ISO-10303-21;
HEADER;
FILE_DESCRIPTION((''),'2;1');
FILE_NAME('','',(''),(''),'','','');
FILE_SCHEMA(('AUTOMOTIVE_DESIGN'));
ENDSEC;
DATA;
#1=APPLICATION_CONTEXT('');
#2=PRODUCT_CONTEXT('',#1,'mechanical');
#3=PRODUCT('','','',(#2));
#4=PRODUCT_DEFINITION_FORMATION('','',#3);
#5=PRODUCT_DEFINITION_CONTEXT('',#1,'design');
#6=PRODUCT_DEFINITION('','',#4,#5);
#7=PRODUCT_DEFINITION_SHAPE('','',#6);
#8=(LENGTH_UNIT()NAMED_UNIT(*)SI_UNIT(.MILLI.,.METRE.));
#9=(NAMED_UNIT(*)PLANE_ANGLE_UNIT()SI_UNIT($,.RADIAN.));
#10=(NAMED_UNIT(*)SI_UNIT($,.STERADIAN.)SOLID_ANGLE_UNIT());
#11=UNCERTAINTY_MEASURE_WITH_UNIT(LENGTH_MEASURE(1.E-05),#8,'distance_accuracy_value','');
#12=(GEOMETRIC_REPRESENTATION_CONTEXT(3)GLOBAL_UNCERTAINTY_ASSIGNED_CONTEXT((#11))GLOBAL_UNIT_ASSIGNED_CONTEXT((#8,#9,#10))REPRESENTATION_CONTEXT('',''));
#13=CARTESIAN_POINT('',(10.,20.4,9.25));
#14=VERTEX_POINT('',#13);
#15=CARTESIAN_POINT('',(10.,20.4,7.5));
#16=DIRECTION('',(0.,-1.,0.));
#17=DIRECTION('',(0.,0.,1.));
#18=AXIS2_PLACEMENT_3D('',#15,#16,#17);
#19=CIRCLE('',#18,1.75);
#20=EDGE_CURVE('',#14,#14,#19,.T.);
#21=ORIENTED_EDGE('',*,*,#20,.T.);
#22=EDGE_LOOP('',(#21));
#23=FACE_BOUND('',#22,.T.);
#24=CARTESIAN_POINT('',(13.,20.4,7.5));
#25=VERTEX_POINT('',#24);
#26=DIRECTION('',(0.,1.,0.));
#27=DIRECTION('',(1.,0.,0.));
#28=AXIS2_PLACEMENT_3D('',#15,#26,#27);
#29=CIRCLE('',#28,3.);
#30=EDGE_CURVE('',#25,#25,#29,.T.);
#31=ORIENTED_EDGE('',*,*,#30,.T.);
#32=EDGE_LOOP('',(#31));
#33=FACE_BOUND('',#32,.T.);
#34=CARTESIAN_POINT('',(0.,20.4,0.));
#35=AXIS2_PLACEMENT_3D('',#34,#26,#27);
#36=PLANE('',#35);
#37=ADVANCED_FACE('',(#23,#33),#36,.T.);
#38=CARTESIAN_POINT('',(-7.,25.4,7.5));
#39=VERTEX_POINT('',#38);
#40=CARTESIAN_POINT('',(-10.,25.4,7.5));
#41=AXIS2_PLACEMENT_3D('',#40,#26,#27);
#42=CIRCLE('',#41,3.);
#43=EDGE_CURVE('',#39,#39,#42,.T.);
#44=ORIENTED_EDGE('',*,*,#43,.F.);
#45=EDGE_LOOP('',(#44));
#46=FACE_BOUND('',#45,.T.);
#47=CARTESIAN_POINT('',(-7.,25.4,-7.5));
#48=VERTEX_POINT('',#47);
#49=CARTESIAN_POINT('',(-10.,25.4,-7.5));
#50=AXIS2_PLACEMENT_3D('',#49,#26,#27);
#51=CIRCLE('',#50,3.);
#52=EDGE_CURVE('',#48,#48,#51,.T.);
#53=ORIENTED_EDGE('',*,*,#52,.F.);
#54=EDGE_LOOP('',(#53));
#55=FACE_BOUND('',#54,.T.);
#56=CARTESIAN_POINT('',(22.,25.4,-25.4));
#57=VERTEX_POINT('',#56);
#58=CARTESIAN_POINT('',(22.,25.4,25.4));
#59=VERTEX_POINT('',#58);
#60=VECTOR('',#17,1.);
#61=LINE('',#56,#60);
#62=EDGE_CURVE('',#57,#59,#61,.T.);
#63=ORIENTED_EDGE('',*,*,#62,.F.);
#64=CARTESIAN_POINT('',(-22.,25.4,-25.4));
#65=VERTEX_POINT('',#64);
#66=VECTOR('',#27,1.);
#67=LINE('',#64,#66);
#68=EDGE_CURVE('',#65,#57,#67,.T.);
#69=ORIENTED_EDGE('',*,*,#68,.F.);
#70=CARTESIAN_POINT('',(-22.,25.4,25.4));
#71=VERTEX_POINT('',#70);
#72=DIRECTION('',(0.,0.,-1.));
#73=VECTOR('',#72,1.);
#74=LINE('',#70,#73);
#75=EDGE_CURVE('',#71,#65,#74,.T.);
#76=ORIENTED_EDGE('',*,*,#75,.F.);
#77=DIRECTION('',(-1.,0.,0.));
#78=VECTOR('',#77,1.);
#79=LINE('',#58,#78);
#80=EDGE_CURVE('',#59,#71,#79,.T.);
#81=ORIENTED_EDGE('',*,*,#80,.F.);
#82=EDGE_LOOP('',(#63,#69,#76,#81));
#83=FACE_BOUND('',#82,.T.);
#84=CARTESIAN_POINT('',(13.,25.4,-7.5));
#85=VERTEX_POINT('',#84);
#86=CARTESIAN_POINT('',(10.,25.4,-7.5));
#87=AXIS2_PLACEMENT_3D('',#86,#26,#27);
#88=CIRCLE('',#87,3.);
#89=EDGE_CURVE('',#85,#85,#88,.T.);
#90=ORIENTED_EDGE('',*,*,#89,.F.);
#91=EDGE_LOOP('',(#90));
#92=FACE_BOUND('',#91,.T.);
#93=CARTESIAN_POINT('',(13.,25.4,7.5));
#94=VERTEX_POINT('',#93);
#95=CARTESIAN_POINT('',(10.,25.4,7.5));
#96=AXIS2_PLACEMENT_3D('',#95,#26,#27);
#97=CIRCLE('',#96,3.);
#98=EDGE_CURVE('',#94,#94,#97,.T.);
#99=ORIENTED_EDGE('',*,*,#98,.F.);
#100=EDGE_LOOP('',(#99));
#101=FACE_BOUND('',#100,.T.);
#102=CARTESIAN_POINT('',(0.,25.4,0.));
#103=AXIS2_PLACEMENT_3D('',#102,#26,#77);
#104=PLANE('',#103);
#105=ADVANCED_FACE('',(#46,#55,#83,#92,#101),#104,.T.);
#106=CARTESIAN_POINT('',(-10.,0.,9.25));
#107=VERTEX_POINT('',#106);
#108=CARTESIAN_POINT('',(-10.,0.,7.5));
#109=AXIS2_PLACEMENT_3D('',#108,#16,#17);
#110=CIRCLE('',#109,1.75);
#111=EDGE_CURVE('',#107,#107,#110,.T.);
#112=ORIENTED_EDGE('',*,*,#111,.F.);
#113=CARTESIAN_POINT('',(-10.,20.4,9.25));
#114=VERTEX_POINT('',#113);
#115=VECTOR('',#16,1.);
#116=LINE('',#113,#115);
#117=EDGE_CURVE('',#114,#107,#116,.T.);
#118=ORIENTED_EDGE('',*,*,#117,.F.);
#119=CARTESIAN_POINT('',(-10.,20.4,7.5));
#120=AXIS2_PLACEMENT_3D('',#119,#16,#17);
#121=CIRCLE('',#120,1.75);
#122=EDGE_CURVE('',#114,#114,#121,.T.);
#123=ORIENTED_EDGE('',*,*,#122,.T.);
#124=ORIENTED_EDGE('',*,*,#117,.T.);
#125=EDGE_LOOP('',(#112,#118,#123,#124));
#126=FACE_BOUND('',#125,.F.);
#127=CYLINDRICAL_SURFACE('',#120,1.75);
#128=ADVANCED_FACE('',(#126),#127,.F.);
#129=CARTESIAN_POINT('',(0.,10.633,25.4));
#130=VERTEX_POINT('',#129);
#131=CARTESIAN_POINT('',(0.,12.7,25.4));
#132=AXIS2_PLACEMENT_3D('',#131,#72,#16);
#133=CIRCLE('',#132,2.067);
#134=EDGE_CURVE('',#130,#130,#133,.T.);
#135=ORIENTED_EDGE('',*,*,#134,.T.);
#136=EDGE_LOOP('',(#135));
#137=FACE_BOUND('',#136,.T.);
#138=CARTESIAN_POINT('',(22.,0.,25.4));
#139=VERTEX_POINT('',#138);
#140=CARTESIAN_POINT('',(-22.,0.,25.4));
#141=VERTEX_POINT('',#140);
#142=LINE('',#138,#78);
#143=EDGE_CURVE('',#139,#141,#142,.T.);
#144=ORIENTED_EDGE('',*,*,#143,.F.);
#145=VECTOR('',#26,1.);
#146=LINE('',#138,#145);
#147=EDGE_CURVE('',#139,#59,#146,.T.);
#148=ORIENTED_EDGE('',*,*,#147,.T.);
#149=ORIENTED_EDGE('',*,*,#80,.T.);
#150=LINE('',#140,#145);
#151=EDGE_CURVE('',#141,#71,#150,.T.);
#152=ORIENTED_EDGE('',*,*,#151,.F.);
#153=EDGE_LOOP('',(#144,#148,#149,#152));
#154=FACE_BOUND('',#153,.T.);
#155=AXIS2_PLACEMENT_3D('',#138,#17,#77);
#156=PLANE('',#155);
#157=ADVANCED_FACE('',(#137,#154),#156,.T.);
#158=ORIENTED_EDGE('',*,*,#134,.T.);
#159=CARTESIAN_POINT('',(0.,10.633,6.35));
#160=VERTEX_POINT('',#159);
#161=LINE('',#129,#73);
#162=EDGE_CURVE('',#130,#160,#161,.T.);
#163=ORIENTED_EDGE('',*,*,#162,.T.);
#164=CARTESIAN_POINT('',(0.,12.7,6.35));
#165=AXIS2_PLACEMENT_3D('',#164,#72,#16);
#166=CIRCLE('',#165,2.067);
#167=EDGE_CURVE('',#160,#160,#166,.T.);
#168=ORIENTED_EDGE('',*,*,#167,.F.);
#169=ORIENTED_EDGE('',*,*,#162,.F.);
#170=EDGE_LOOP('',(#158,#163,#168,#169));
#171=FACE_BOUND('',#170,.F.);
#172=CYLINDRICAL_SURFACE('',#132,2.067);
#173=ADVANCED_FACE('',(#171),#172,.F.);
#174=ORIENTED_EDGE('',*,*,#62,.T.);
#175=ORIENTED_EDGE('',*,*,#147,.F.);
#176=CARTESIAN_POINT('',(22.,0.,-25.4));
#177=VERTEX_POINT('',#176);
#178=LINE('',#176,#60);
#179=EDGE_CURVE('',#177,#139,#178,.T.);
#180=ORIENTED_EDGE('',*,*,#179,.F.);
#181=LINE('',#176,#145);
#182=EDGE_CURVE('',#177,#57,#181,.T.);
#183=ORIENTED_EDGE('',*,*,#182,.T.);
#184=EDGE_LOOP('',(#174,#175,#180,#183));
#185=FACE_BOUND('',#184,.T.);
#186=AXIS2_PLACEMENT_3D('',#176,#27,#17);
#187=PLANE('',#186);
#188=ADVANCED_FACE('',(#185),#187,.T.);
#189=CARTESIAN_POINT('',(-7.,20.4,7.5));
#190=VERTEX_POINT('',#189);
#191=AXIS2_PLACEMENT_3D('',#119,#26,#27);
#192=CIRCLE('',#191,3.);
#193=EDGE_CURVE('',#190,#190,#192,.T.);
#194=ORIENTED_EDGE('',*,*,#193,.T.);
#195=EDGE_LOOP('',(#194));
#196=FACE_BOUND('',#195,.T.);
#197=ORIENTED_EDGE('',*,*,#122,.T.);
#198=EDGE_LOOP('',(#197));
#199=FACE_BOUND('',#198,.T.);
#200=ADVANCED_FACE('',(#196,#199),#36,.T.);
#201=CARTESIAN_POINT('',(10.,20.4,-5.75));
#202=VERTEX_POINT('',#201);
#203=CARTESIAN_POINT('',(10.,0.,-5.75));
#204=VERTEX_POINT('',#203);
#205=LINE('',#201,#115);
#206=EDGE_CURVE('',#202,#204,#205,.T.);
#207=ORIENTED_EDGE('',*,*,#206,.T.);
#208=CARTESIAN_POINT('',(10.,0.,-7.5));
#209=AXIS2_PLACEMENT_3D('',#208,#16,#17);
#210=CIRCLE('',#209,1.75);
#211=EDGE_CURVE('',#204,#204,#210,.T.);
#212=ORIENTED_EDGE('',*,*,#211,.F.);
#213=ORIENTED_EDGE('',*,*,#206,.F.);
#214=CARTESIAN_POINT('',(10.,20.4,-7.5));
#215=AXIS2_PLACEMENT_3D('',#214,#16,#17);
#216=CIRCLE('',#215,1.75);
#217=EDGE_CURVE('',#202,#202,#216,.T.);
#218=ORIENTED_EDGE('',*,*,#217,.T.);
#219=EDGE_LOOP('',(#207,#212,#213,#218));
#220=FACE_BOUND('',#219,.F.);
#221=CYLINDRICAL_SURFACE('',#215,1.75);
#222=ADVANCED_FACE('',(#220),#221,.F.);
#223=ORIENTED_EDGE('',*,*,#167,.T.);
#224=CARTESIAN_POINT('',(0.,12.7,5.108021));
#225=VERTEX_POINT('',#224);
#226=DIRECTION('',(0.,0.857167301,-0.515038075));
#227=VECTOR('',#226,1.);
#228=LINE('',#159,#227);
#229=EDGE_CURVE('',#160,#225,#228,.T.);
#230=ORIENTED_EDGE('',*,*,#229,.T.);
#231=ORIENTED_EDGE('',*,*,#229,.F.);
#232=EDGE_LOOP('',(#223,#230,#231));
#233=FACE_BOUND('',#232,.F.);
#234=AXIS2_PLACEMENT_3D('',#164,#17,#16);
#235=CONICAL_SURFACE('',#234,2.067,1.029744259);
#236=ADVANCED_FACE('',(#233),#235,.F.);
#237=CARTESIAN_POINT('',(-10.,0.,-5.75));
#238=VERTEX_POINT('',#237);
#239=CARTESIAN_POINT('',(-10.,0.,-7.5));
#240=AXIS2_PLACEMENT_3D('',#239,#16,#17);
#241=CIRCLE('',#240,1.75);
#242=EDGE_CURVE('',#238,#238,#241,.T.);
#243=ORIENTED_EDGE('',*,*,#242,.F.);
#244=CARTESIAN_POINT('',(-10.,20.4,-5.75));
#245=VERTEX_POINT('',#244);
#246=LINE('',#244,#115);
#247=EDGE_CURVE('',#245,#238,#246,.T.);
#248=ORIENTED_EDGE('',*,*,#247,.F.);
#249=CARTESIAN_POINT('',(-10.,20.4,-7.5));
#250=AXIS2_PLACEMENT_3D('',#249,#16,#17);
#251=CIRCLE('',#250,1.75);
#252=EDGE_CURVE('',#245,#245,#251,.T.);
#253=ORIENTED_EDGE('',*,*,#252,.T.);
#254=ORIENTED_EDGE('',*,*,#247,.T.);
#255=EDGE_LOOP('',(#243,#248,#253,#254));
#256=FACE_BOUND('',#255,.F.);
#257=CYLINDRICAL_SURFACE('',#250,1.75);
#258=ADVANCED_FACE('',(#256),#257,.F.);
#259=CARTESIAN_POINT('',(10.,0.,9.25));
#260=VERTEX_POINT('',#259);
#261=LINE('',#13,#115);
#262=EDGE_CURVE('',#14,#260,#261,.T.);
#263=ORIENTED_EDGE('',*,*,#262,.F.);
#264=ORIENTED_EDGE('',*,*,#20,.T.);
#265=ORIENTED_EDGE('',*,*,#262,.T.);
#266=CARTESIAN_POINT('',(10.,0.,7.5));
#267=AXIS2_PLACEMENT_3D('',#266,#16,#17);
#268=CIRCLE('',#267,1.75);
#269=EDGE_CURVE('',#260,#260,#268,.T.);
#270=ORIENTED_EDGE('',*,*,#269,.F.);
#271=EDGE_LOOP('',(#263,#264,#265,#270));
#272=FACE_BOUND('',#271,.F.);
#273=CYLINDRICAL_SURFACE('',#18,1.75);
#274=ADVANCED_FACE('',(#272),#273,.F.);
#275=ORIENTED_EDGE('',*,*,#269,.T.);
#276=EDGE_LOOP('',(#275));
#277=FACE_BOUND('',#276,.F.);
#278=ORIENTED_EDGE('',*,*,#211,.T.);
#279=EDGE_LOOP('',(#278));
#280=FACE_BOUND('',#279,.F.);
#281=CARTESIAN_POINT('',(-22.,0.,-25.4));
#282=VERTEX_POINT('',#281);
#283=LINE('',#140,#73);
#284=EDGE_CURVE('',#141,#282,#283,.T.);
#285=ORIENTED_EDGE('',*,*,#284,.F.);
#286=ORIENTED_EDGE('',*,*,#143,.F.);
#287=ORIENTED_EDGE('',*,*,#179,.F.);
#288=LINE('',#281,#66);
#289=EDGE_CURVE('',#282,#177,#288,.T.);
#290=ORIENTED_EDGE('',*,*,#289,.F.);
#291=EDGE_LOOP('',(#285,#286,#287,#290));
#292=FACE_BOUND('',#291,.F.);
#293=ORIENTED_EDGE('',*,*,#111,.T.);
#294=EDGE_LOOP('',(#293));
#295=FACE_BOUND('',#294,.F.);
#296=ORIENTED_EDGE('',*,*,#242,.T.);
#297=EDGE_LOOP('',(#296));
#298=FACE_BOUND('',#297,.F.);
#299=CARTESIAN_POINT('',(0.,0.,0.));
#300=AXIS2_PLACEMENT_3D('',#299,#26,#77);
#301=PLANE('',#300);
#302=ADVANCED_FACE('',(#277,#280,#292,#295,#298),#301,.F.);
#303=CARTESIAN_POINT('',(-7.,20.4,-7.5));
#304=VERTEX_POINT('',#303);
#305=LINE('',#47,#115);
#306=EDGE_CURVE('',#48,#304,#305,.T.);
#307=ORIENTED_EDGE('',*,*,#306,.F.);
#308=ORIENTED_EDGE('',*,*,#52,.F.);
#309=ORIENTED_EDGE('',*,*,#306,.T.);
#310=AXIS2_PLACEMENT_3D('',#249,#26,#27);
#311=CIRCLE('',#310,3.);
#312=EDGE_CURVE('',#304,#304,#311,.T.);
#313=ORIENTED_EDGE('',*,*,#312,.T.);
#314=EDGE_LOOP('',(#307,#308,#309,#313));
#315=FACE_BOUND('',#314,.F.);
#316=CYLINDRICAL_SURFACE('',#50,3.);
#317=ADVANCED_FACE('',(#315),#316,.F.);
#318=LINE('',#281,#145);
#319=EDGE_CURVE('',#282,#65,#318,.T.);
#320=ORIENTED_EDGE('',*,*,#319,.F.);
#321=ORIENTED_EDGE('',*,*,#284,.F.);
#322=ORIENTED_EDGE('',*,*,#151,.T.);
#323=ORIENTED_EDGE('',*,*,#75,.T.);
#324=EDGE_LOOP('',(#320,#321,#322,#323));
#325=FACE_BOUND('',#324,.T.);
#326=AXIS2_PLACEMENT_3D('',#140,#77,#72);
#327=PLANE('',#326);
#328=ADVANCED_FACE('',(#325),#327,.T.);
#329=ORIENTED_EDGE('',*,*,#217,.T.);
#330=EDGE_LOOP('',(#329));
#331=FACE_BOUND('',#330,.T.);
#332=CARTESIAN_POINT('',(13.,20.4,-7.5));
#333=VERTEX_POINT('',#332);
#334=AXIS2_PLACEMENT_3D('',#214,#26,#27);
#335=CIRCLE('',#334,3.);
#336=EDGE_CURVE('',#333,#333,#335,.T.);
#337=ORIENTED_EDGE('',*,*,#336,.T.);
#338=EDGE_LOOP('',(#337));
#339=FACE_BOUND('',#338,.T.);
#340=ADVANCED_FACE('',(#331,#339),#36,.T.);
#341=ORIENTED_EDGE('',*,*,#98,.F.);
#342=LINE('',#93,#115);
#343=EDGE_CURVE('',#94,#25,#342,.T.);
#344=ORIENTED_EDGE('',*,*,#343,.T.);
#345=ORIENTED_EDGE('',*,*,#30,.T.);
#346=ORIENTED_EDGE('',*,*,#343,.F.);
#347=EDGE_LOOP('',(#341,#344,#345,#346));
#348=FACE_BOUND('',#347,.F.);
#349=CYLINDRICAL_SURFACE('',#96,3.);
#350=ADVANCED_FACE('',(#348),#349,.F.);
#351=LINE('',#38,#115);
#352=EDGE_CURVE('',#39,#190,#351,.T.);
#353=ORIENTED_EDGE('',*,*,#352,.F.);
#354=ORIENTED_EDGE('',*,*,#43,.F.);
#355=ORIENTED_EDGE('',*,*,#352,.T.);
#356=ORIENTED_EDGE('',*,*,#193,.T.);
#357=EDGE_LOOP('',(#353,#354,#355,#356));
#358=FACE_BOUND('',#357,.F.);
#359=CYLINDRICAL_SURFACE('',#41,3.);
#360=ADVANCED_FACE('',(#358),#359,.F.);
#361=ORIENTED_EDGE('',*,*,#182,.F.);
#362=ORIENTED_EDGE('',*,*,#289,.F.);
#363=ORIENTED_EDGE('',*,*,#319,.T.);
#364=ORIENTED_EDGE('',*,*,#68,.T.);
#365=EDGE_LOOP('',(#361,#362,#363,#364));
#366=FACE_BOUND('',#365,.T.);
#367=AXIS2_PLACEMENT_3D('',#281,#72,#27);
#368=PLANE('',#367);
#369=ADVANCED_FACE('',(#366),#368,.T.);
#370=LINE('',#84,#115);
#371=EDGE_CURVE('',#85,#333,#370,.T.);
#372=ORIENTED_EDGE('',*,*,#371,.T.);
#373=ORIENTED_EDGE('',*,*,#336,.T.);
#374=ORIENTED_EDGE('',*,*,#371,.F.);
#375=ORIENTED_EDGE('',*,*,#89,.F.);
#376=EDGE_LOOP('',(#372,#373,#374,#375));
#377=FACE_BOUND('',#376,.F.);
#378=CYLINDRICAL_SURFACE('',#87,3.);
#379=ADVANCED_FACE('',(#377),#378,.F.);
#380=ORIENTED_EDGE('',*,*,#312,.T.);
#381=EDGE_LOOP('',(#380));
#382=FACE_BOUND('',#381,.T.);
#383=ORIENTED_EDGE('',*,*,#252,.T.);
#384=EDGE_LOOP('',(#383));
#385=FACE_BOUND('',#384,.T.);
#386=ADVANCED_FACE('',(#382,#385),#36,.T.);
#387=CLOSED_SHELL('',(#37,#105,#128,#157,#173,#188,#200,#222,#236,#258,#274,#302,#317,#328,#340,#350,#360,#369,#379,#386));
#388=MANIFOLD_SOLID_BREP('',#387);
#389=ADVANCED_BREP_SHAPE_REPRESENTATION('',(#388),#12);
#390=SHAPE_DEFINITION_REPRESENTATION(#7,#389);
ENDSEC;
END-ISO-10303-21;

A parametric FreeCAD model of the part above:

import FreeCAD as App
import Part
import Sketcher
Q = App.Units.Quantity


def add_polygon(sketch, points):
    """Adds a closed chain of lines whose ends are joined by coincident constraints."""
    first, n = sketch.GeometryCount, len(points)
    for a, b in zip(points, points[1:] + points[:1]):
        sketch.addGeometry(Part.LineSegment(App.Vector(*a, 0), App.Vector(*b, 0)), False)
    for i in range(n):
        sketch.addConstraint(Sketcher.Constraint("Coincident", first + i, 2, first + (i + 1) % n, 1))

doc = App.newDocument("Part")
params = doc.addObject("Spreadsheet::Sheet", "Params")
for row, (alias, value) in enumerate([
    ("sketch1_width", "44 mm"),
    ("sketch1_height", "50.8 mm"),
    ("pad1_length", "25.4 mm"),
    ("hole_diameter", "4.134 mm"),
    ("hole_depth", "19.05 mm"),
    ("sketch3_diameter", "6 mm"),
    ("pocket1_length", "5 mm"),
    ("sketch4_diameter", "3.5 mm"),
    ("hole2_diameter", "3.5 mm"),
], start=1):
    params.set(f"A{row}", alias)
    params.set(f"B{row}", "=" + value)
    params.setAlias(f"B{row}", alias)

body = doc.addObject("PartDesign::Body", "Body")

sketch1 = body.newObject("Sketcher::SketchObject", "Sketch")
sketch1.AttachmentSupport = (doc.getObject("XZ_Plane"), [""])
sketch1.MapMode = "FlatFace"
add_polygon(sketch1, [(-22, 25.4), (22, 25.4), (22, -25.4), (-22, -25.4)])
sketch1.addConstraint([
    Sketcher.Constraint("Horizontal", 0),
    Sketcher.Constraint("Vertical", 1),
    Sketcher.Constraint("Horizontal", 2),
    Sketcher.Constraint("Vertical", 3),
    Sketcher.Constraint("Symmetric", 0, 2, 2, 2, -1, 1),
    Sketcher.Constraint("DistanceX", 0, 1, 0, 2, Q("44 mm")),
    Sketcher.Constraint("DistanceY", 1, 2, 1, 1, Q("50.8 mm")),
])
sketch1.setExpression("Constraints[9]", "Params.sketch1_width")
sketch1.setExpression("Constraints[10]", "Params.sketch1_height")
pad1 = body.newObject("PartDesign::Pad", "Pad")
pad1.Profile = sketch1
pad1.setExpression("Length", "Params.pad1_length")
pad1.Reversed = True

sketch2 = body.newObject("Sketcher::SketchObject", "Sketch001")
sketch2.AttachmentSupport = (doc.getObject("XY_Plane"), [""])
sketch2.MapMode = "FlatFace"
sketch2.AttachmentOffset = App.Placement(App.Vector(0, 0, 25.4), App.Rotation())
sketch2.addGeometry(Part.Circle(App.Vector(0, 12.7, 0), App.Vector(0, 0, 1), 2.067), False)
sketch2.addConstraint([
    Sketcher.Constraint("PointOnObject", 0, 3, -2),
    Sketcher.Constraint("Diameter", 0, Q("4.134 mm")),
    Sketcher.Constraint("DistanceY", -1, 1, 0, 3, Q("12.7 mm")),
])
doc.recompute()
hole = body.newObject("PartDesign::Hole", "Hole")
hole.Profile = sketch2
hole.ThreadType = "None"
hole.setExpression("Diameter", "Params.hole_diameter")
hole.DepthType = "Dimension"
hole.setExpression("Depth", "Params.hole_depth")
hole.DrillPoint = "Angled"
hole.DrillPointAngle = 118

sketch3 = body.newObject("Sketcher::SketchObject", "Sketch002")
sketch3.AttachmentSupport = (doc.getObject("XZ_Plane"), [""])
sketch3.MapMode = "FlatFace"
sketch3.AttachmentOffset = App.Placement(App.Vector(0, 0, -25.4), App.Rotation())
sketch3.addGeometry([
    Part.Circle(App.Vector(-10, -7.5, 0), App.Vector(0, 0, 1), 3),
    Part.Circle(App.Vector(10, -7.5, 0), App.Vector(0, 0, 1), 3),
    Part.Circle(App.Vector(10, 7.5, 0), App.Vector(0, 0, 1), 3),
    Part.Circle(App.Vector(-10, 7.5, 0), App.Vector(0, 0, 1), 3),
], False)
sketch3.addConstraint([
    Sketcher.Constraint("Equal", 0, 1),
    Sketcher.Constraint("Equal", 1, 2),
    Sketcher.Constraint("Equal", 2, 3),
    Sketcher.Constraint("Symmetric", 0, 3, 2, 3, -1, 1),
    Sketcher.Constraint("Symmetric", 1, 3, 3, 3, -1, 1),
    Sketcher.Constraint("Symmetric", 0, 3, 1, 3, -2),
    Sketcher.Constraint("Diameter", 0, Q("6 mm")),
    Sketcher.Constraint("DistanceX", 0, 3, 1, 3, Q("20 mm")),
    Sketcher.Constraint("DistanceY", 1, 3, 2, 3, Q("15 mm")),
])
sketch3.setExpression("Constraints[6]", "Params.sketch3_diameter")
pocket1 = body.newObject("PartDesign::Pocket", "Pocket")
pocket1.Profile = sketch3
pocket1.setExpression("Length", "Params.pocket1_length")
pocket1.Reversed = True

sketch4 = body.newObject("Sketcher::SketchObject", "Sketch003")
sketch4.AttachmentSupport = (doc.getObject("XZ_Plane"), [""])
sketch4.MapMode = "FlatFace"
sketch4.AttachmentOffset = App.Placement(App.Vector(0, 0, -20.4), App.Rotation())
sketch4.addGeometry([
    Part.Circle(App.Vector(-10, -7.5, 0), App.Vector(0, 0, 1), 1.75),
    Part.Circle(App.Vector(-10, 7.5, 0), App.Vector(0, 0, 1), 1.75),
    Part.Circle(App.Vector(10, 7.5, 0), App.Vector(0, 0, 1), 1.75),
    Part.Circle(App.Vector(10, -7.5, 0), App.Vector(0, 0, 1), 1.75),
], False)
sketch4.addConstraint([
    Sketcher.Constraint("Equal", 0, 1),
    Sketcher.Constraint("Equal", 1, 2),
    Sketcher.Constraint("Equal", 2, 3),
    Sketcher.Constraint("Symmetric", 0, 3, 2, 3, -1, 1),
    Sketcher.Constraint("Symmetric", 1, 3, 3, 3, -1, 1),
    Sketcher.Constraint("Symmetric", 1, 3, 2, 3, -2),
    Sketcher.Constraint("Diameter", 0, Q("3.5 mm")),
    Sketcher.Constraint("DistanceX", 0, 3, -1, 1, Q("10 mm")),
    Sketcher.Constraint("DistanceY", 0, 3, 1, 3, Q("15 mm")),
])
sketch4.setExpression("Constraints[6]", "Params.sketch4_diameter")
doc.recompute()
hole2 = body.newObject("PartDesign::Hole", "Hole001")
hole2.Profile = sketch4
hole2.ThreadType = "None"
hole2.setExpression("Diameter", "Params.hole2_diameter")
hole2.DepthType = "ThroughAll"
hole2.Reversed = True

doc.recompute()
